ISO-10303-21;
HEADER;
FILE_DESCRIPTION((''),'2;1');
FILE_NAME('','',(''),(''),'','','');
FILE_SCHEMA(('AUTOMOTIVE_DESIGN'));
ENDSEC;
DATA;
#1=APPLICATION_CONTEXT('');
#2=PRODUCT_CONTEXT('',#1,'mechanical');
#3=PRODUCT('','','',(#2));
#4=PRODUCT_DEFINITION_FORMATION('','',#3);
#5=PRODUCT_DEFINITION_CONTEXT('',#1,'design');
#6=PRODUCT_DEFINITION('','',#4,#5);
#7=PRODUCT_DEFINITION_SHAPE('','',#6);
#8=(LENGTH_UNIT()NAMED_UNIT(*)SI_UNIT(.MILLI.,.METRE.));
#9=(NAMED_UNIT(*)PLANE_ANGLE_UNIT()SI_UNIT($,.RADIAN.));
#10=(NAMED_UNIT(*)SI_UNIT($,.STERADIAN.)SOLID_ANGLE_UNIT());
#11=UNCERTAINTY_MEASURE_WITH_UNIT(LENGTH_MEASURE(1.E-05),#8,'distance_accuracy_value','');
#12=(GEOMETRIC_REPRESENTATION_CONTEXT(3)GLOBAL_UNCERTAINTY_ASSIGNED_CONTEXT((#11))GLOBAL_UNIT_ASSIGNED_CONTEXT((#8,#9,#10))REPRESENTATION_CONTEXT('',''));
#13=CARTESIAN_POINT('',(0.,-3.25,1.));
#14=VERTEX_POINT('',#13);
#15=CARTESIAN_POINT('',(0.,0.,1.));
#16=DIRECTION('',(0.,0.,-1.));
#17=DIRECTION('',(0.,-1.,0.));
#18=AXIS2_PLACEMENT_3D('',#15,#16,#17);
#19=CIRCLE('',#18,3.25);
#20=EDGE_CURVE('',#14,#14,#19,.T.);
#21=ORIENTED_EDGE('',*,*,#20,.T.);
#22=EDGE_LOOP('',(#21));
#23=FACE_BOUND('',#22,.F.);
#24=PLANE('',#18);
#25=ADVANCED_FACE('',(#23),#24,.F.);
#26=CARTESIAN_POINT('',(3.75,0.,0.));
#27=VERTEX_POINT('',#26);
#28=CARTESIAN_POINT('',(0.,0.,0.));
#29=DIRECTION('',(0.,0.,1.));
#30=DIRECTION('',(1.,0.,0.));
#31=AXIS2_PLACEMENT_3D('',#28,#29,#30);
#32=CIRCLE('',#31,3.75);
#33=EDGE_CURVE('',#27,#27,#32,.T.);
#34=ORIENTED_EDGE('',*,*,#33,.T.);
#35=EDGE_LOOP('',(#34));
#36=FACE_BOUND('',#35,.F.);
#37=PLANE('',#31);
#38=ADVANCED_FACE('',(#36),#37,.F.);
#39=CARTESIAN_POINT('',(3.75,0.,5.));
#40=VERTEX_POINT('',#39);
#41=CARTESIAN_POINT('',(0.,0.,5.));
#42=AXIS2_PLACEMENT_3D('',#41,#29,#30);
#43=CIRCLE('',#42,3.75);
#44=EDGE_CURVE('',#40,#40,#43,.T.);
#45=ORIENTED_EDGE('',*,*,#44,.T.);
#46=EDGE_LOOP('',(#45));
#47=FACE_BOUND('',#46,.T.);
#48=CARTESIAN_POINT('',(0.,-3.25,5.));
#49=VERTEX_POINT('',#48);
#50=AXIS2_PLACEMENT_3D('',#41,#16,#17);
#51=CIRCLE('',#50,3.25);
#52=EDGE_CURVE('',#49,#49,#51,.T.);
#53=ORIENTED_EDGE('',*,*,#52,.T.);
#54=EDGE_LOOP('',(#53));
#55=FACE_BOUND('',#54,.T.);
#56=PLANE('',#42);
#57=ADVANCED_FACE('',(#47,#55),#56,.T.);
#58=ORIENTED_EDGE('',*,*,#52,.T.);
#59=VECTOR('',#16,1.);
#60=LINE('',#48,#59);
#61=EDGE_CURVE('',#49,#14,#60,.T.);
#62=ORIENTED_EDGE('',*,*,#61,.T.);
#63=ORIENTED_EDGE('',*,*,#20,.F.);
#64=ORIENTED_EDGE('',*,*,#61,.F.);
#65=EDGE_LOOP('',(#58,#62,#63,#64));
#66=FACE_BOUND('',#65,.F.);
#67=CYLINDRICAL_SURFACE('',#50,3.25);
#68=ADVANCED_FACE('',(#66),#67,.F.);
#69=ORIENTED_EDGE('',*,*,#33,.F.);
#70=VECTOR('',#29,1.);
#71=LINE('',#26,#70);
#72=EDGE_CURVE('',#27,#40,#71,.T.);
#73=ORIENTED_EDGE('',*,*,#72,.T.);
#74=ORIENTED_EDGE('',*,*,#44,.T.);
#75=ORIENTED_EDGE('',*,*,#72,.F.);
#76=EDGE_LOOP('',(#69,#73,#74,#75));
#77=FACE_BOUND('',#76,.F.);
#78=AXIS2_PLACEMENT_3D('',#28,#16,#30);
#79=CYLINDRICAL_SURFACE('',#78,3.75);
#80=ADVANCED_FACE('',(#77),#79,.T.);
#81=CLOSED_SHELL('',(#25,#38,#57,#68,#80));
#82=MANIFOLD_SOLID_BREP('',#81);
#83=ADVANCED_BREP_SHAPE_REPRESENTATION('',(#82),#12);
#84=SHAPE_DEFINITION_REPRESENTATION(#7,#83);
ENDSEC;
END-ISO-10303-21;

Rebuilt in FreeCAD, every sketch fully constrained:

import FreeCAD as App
import Part
import Sketcher

V = App.Vector
Q = App.Units.Quantity

doc = App.newDocument("Part")
body = doc.addObject("PartDesign::Body", "Body")

sketch1 = doc.addObject("Sketcher::SketchObject", "Sketch")
body.addObject(sketch1)
sketch1.AttachmentSupport = (doc.XY_Plane, [""])
sketch1.MapMode = "FlatFace"
sketch1.addGeometry(Part.Circle(V(0, 0, 0), V(0, 0, 1), 3.75), False)
sketch1.addConstraint(Sketcher.Constraint("Coincident", 0, 3, -1, 1))
sketch1.addConstraint(Sketcher.Constraint("Diameter", 0, Q("7.5 mm")))
pad1 = doc.addObject("PartDesign::Pad", "Pad")
body.addObject(pad1)
pad1.Profile = sketch1
pad1.Length = 5

sketch2 = doc.addObject("Sketcher::SketchObject", "Sketch001")
body.addObject(sketch2)
sketch2.AttachmentSupport = (doc.XY_Plane, [""])
sketch2.MapMode = "FlatFace"
sketch2.AttachmentOffset = App.Placement(V(0, 0, 5), App.Rotation())
sketch2.addGeometry(Part.Circle(V(0, 0, 0), V(0, 0, 1), 3.25), False)
sketch2.addConstraint(Sketcher.Constraint("Coincident", 0, 3, -1, 1))
sketch2.addConstraint(Sketcher.Constraint("Diameter", 0, Q("6.5 mm")))
doc.recompute()
hole = doc.addObject("PartDesign::Hole", "Hole")
body.addObject(hole)
hole.Profile = sketch2
hole.ThreadType = "None"
hole.Diameter = 6.5
hole.DepthType = "Dimension"
hole.Depth = 4
hole.DrillPoint = "Flat"

doc.recompute()
